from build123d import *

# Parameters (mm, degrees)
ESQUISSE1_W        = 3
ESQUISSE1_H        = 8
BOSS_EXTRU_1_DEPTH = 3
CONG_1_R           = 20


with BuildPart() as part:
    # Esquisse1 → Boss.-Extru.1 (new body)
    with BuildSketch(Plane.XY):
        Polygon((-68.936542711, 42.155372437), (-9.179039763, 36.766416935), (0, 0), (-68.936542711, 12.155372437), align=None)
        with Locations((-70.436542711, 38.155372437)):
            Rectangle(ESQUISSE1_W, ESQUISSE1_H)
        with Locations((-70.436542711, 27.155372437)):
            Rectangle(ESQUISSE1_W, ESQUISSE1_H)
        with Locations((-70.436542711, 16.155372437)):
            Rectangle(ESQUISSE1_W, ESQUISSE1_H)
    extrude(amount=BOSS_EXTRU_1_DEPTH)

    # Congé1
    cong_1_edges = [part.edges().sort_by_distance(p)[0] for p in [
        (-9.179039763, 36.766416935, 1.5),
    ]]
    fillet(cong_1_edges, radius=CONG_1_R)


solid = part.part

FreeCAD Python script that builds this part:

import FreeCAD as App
import Part
import Sketcher
Q = App.Units.Quantity


def edges_at(feature, points):
    """Names of the edges that pass closest to the given points."""
    edges = feature.Shape.Edges
    near = lambda p: min(range(len(edges)), key=lambda i: edges[i].distToShape(Part.Vertex(*p))[0])
    return sorted({f"Edge{near(p) + 1}" for p in points})

doc = App.newDocument("Part")
body = doc.addObject("PartDesign::Body", "Body")

# Sketch on XY plane
sketch1 = body.newObject("Sketcher::SketchObject", "Sketch")
sketch1.AttachmentSupport = (doc.getObject("XY_Plane"), [""])
sketch1.MapMode = "FlatFace"
sketch1.addGeometry([
    Part.LineSegment(App.Vector(-9.17904, 36.766417, 0), App.Vector(-68.936543, 42.155372, 0)),  # 0
    Part.LineSegment(App.Vector(-68.936543, 42.155372, 0), App.Vector(-71.936543, 42.155372, 0)),  # 1
    Part.LineSegment(App.Vector(-71.936543, 42.155372, 0), App.Vector(-71.936543, 34.155372, 0)),  # 2
    Part.LineSegment(App.Vector(-71.936543, 34.155372, 0), App.Vector(-68.936543, 34.155372, 0)),  # 3
    Part.LineSegment(App.Vector(-68.936543, 34.155372, 0), App.Vector(-68.936543, 31.155372, 0)),  # 4
    Part.LineSegment(App.Vector(-68.936543, 31.155372, 0), App.Vector(-71.936543, 31.155372, 0)),  # 5
    Part.LineSegment(App.Vector(-71.936543, 31.155372, 0), App.Vector(-71.936543, 23.155372, 0)),  # 6
    Part.LineSegment(App.Vector(-71.936543, 23.155372, 0), App.Vector(-68.936543, 23.155372, 0)),  # 7
    Part.LineSegment(App.Vector(-68.936543, 23.155372, 0), App.Vector(-68.936543, 20.155372, 0)),  # 8
    Part.LineSegment(App.Vector(-68.936543, 20.155372, 0), App.Vector(-71.936543, 20.155372, 0)),  # 9
    Part.LineSegment(App.Vector(-71.936543, 20.155372, 0), App.Vector(-71.936543, 12.155372, 0)),  # 10
    Part.LineSegment(App.Vector(-71.936543, 12.155372, 0), App.Vector(-68.936543, 12.155372, 0)),  # 11
    Part.LineSegment(App.Vector(-68.936543, 12.155372, 0), App.Vector(0, 0, 0)),  # 12
    Part.LineSegment(App.Vector(0, 0, 0), App.Vector(-9.17904, 36.766417, 0)),  # 13
], False)
sketch1.addConstraint([
    Sketcher.Constraint("Coincident", 0, 2, 1, 1),
    Sketcher.Constraint("Coincident", 1, 2, 2, 1),
    Sketcher.Constraint("Coincident", 2, 2, 3, 1),
    Sketcher.Constraint("Coincident", 3, 2, 4, 1),
    Sketcher.Constraint("Coincident", 4, 2, 5, 1),
    Sketcher.Constraint("Coincident", 5, 2, 6, 1),
    Sketcher.Constraint("Coincident", 6, 2, 7, 1),
    Sketcher.Constraint("Coincident", 7, 2, 8, 1),
    Sketcher.Constraint("Coincident", 8, 2, 9, 1),
    Sketcher.Constraint("Coincident", 9, 2, 10, 1),
    Sketcher.Constraint("Coincident", 10, 2, 11, 1),
    Sketcher.Constraint("Coincident", 11, 2, 12, 1),
    Sketcher.Constraint("Coincident", 12, 2, 13, 1),
    Sketcher.Constraint("Coincident", 13, 2, 0, 1),
    Sketcher.Constraint("Horizontal", 1),
    Sketcher.Constraint("Vertical", 2),
    Sketcher.Constraint("Horizontal", 3),
    Sketcher.Constraint("Vertical", 4),
    Sketcher.Constraint("Horizontal", 5),
    Sketcher.Constraint("Vertical", 6),
    Sketcher.Constraint("Horizontal", 7),
    Sketcher.Constraint("Vertical", 8),
    Sketcher.Constraint("Horizontal", 9),
    Sketcher.Constraint("Vertical", 10),
    Sketcher.Constraint("Horizontal", 11),
    Sketcher.Constraint("Coincident", 12, 2, -1, 1),
    Sketcher.Constraint("Vertical", 0, 2, 3, 2),
    Sketcher.Constraint("Vertical", 2, 2, 5, 2),
    Sketcher.Constraint("Vertical", 4, 2, 7, 2),
    Sketcher.Constraint("Vertical", 6, 2, 9, 2),
    Sketcher.Constraint("Vertical", 8, 2, 11, 2),
    Sketcher.Constraint("Equal", 11, 4),
    Sketcher.Constraint("Equal", 2, 6),
    Sketcher.Constraint("Equal", 4, 8),
    Sketcher.Constraint("Equal", 6, 10),
    Sketcher.Constraint("DistanceX", 1, 2, 1, 1, 3.0),
    Sketcher.Constraint("DistanceY", 2, 2, 2, 1, 8.0),
    Sketcher.Constraint("Angle", 12, Q("-10 deg")),
    Sketcher.Constraint("Distance", 0, 60.0),
    Sketcher.Constraint("Distance", 12, 70.0),
    Sketcher.Constraint("Distance", 13, 37.89491),
])
pad1 = body.newObject("PartDesign::Pad", "Pad")
pad1.Profile = sketch1
pad1.Length = 3
doc.recompute()

fillet = body.newObject("PartDesign::Fillet", "Fillet")
fillet.Base = (pad1, edges_at(pad1, [(-9.179, 36.766, 1.5)]))
fillet.Radius = 20

doc.recompute()
